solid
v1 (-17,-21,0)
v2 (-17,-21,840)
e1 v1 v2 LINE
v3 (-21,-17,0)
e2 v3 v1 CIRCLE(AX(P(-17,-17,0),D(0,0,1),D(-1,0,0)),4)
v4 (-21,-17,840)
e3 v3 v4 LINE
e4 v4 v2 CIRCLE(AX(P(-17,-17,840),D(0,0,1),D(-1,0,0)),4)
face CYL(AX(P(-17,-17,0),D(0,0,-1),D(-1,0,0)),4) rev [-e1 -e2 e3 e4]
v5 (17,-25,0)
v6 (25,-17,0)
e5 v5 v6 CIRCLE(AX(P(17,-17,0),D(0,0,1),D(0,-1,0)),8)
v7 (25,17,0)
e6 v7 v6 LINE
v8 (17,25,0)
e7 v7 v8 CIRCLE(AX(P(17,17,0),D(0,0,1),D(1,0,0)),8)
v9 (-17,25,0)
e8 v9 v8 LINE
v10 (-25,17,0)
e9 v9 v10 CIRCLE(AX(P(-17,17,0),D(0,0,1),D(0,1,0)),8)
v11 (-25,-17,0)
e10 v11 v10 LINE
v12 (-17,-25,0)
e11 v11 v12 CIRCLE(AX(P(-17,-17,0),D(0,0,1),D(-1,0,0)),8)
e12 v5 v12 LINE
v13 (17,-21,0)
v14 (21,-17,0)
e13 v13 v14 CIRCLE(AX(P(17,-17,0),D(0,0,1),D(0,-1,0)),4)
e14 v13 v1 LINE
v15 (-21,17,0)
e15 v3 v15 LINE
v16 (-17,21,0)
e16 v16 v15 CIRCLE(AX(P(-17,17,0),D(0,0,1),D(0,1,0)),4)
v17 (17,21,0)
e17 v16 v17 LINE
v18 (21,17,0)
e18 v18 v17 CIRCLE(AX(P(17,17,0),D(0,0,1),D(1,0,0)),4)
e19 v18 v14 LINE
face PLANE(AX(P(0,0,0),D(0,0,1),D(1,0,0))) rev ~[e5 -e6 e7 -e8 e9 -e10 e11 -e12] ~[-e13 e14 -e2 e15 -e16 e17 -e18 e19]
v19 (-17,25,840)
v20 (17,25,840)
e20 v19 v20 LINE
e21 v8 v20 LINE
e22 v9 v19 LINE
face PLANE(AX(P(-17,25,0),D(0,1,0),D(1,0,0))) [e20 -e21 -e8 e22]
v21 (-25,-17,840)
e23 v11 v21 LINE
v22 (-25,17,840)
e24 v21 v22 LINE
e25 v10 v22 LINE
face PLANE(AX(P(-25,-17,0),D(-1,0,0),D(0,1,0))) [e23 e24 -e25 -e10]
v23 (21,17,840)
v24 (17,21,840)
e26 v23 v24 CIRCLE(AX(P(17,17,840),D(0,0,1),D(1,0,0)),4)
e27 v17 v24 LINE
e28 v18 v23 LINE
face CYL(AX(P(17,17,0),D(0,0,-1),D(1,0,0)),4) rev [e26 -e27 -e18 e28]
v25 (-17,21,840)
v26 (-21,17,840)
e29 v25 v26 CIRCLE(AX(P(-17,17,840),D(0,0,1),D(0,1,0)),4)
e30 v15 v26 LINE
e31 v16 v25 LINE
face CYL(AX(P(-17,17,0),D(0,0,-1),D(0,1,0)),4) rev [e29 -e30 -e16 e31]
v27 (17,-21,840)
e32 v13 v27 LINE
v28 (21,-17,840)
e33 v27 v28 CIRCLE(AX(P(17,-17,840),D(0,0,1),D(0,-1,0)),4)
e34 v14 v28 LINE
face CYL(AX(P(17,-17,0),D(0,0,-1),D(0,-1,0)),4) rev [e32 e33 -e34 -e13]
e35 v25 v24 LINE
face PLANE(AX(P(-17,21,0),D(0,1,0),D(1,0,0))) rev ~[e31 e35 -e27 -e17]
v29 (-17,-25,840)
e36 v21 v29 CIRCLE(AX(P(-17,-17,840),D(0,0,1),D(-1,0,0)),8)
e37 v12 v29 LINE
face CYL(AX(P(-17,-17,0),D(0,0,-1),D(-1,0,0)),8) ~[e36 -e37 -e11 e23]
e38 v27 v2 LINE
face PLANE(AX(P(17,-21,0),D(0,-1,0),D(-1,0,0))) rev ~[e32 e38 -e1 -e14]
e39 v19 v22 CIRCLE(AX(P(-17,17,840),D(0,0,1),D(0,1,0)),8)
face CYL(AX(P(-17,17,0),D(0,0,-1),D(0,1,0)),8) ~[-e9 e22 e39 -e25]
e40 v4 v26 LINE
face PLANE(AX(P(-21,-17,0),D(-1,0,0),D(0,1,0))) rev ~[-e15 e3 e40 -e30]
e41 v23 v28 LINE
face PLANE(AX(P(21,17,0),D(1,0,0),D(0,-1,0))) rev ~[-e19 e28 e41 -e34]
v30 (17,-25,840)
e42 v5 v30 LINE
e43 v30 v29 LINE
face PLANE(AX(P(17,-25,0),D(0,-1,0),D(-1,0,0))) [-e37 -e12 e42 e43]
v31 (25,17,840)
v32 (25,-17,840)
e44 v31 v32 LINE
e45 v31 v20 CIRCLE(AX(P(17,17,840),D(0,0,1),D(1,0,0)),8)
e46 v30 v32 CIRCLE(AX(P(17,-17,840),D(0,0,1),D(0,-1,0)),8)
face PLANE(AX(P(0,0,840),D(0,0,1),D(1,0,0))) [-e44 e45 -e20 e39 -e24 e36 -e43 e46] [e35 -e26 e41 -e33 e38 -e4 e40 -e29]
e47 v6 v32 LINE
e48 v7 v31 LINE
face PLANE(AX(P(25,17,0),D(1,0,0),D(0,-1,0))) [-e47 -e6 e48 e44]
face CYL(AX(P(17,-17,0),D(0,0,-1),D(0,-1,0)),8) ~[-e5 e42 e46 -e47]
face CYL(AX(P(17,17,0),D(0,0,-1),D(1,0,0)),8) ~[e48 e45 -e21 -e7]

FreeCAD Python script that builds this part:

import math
import FreeCAD as App
import Part
import Sketcher
from FreeCAD import Vector
Q = App.Units.Quantity

doc = App.newDocument("Part")
body = doc.addObject("PartDesign::Body", "Body")

# Sketch on XY plane
sketch1 = body.newObject("Sketcher::SketchObject", "Sketch")
sketch1.AttachmentSupport = (doc.getObject("XY_Plane"), [""])
sketch1.MapMode = "FlatFace"
sketch1.addGeometry([
    Part.LineSegment(Vector(-25, 17, 0), Vector(-25, -17, 0)),  # 0
    Part.ArcOfCircle(Part.Circle(Vector(-17, -17, 0), Vector(0, 0, 1), 8), math.radians(180), math.radians(270)),  # 1
    Part.LineSegment(Vector(-17, -25, 0), Vector(17, -25, 0)),  # 2
    Part.ArcOfCircle(Part.Circle(Vector(17, -17, 0), Vector(0, 0, 1), 8), math.radians(-90), math.radians(0)),  # 3
    Part.LineSegment(Vector(25, -17, 0), Vector(25, 17, 0)),  # 4
    Part.ArcOfCircle(Part.Circle(Vector(17, 17, 0), Vector(0, 0, 1), 8), math.radians(0), math.radians(90)),  # 5
    Part.LineSegment(Vector(17, 25, 0), Vector(-17, 25, 0)),  # 6
    Part.ArcOfCircle(Part.Circle(Vector(-17, 17, 0), Vector(0, 0, 1), 8), math.radians(90), math.radians(180)),  # 7
    Part.ArcOfCircle(Part.Circle(Vector(-17, 17, 0), Vector(0, 0, 1), 4), math.radians(90), math.radians(180)),  # 8
    Part.LineSegment(Vector(-17, 21, 0), Vector(17, 21, 0)),  # 9
    Part.ArcOfCircle(Part.Circle(Vector(17, 17, 0), Vector(0, 0, 1), 4), math.radians(0), math.radians(90)),  # 10
    Part.LineSegment(Vector(21, 17, 0), Vector(21, -17, 0)),  # 11
    Part.ArcOfCircle(Part.Circle(Vector(17, -17, 0), Vector(0, 0, 1), 4), math.radians(-90), math.radians(0)),  # 12
    Part.LineSegment(Vector(17, -21, 0), Vector(-17, -21, 0)),  # 13
    Part.ArcOfCircle(Part.Circle(Vector(-17, -17, 0), Vector(0, 0, 1), 4), math.radians(180), math.radians(270)),  # 14
    Part.LineSegment(Vector(-21, -17, 0), Vector(-21, 17, 0)),  # 15
], False)
sketch1.addConstraint([
    Sketcher.Constraint("Tangent", 0, 2, 1, 1),
    Sketcher.Constraint("Tangent", 1, 2, 2, 1),
    Sketcher.Constraint("Tangent", 2, 2, 3, 1),
    Sketcher.Constraint("Tangent", 3, 2, 4, 1),
    Sketcher.Constraint("Tangent", 4, 2, 5, 1),
    Sketcher.Constraint("Tangent", 5, 2, 6, 1),
    Sketcher.Constraint("Tangent", 6, 2, 7, 1),
    Sketcher.Constraint("Tangent", 7, 2, 0, 1),
    Sketcher.Constraint("Tangent", 8, 1, 9, 1),
    Sketcher.Constraint("Tangent", 9, 2, 10, 2),
    Sketcher.Constraint("Tangent", 10, 1, 11, 1),
    Sketcher.Constraint("Tangent", 11, 2, 12, 2),
    Sketcher.Constraint("Tangent", 12, 1, 13, 1),
    Sketcher.Constraint("Tangent", 13, 2, 14, 2),
    Sketcher.Constraint("Tangent", 14, 1, 15, 1),
    Sketcher.Constraint("Tangent", 15, 2, 8, 2),
    Sketcher.Constraint("Vertical", 0),
    Sketcher.Constraint("Horizontal", 2),
    Sketcher.Constraint("Vertical", 4),
    Sketcher.Constraint("Horizontal", 6),
    Sketcher.Constraint("Horizontal", 9),
    Sketcher.Constraint("Vertical", 11),
    Sketcher.Constraint("Horizontal", 13),
    Sketcher.Constraint("Vertical", 15),
    Sketcher.Constraint("Coincident", 8, 3, 7, 3),
    Sketcher.Constraint("Coincident", 10, 3, 5, 3),
    Sketcher.Constraint("Coincident", 12, 3, 3, 3),
    Sketcher.Constraint("Equal", 1, 3),
    Sketcher.Constraint("Equal", 3, 5),
    Sketcher.Constraint("Equal", 5, 7),
    Sketcher.Constraint("Equal", 12, 14),
    Sketcher.Constraint("Symmetric", 1, 3, 5, 3, -1, 1),
    Sketcher.Constraint("Equal", 13, 0),
    Sketcher.Constraint("Radius", 1, Q("8 mm")),
    Sketcher.Constraint("Radius", 8, Q("4 mm")),
    Sketcher.Constraint("DistanceX", 0, 2, -1, 1, Q("25 mm")),
])
pad1 = body.newObject("PartDesign::Pad", "Pad")
pad1.Profile = sketch1
pad1.Length = 840

doc.recompute()
